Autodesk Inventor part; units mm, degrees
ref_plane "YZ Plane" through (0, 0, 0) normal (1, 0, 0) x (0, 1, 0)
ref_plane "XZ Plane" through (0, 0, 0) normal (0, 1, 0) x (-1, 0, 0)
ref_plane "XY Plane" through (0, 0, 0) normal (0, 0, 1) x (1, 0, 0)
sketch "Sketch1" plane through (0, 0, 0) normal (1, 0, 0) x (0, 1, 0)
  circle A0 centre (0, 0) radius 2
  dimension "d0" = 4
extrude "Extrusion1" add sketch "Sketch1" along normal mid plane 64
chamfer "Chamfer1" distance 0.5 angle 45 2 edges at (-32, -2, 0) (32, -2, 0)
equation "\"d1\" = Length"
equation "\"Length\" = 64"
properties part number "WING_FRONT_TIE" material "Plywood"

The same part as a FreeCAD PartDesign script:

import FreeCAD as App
import Part
import Sketcher


def edges_at(feature, points):
    """Names of the edges that pass closest to the given points."""
    edges = feature.Shape.Edges
    near = lambda p: min(range(len(edges)), key=lambda i: edges[i].distToShape(Part.Vertex(*p))[0])
    return sorted({f"Edge{near(p) + 1}" for p in points})

doc = App.newDocument("Part")
body = doc.addObject("PartDesign::Body", "Body")

sketch1 = body.newObject("Sketcher::SketchObject", "Sketch")
sketch1.AttachmentSupport = (doc.getObject("YZ_Plane"), [""])
sketch1.MapMode = "FlatFace"
sketch1.addGeometry(Part.Circle(App.Vector(0, 0, 0), App.Vector(0, 0, 1), 2), False)
sketch1.addConstraint(Sketcher.Constraint("Coincident", 0, 3, -1, 1))
sketch1.addConstraint(Sketcher.Constraint("Diameter", 0, 4.0))
pad1 = body.newObject("PartDesign::Pad", "Pad")
pad1.Profile = sketch1
pad1.Length = 64
pad1.Midplane = True
doc.recompute()

chamfer = body.newObject("PartDesign::Chamfer", "Chamfer")
chamfer.Base = (pad1, edges_at(pad1, [(-32, -2, 0), (32, -2, 0)]))
chamfer.Size = 0.5

doc.recompute()
